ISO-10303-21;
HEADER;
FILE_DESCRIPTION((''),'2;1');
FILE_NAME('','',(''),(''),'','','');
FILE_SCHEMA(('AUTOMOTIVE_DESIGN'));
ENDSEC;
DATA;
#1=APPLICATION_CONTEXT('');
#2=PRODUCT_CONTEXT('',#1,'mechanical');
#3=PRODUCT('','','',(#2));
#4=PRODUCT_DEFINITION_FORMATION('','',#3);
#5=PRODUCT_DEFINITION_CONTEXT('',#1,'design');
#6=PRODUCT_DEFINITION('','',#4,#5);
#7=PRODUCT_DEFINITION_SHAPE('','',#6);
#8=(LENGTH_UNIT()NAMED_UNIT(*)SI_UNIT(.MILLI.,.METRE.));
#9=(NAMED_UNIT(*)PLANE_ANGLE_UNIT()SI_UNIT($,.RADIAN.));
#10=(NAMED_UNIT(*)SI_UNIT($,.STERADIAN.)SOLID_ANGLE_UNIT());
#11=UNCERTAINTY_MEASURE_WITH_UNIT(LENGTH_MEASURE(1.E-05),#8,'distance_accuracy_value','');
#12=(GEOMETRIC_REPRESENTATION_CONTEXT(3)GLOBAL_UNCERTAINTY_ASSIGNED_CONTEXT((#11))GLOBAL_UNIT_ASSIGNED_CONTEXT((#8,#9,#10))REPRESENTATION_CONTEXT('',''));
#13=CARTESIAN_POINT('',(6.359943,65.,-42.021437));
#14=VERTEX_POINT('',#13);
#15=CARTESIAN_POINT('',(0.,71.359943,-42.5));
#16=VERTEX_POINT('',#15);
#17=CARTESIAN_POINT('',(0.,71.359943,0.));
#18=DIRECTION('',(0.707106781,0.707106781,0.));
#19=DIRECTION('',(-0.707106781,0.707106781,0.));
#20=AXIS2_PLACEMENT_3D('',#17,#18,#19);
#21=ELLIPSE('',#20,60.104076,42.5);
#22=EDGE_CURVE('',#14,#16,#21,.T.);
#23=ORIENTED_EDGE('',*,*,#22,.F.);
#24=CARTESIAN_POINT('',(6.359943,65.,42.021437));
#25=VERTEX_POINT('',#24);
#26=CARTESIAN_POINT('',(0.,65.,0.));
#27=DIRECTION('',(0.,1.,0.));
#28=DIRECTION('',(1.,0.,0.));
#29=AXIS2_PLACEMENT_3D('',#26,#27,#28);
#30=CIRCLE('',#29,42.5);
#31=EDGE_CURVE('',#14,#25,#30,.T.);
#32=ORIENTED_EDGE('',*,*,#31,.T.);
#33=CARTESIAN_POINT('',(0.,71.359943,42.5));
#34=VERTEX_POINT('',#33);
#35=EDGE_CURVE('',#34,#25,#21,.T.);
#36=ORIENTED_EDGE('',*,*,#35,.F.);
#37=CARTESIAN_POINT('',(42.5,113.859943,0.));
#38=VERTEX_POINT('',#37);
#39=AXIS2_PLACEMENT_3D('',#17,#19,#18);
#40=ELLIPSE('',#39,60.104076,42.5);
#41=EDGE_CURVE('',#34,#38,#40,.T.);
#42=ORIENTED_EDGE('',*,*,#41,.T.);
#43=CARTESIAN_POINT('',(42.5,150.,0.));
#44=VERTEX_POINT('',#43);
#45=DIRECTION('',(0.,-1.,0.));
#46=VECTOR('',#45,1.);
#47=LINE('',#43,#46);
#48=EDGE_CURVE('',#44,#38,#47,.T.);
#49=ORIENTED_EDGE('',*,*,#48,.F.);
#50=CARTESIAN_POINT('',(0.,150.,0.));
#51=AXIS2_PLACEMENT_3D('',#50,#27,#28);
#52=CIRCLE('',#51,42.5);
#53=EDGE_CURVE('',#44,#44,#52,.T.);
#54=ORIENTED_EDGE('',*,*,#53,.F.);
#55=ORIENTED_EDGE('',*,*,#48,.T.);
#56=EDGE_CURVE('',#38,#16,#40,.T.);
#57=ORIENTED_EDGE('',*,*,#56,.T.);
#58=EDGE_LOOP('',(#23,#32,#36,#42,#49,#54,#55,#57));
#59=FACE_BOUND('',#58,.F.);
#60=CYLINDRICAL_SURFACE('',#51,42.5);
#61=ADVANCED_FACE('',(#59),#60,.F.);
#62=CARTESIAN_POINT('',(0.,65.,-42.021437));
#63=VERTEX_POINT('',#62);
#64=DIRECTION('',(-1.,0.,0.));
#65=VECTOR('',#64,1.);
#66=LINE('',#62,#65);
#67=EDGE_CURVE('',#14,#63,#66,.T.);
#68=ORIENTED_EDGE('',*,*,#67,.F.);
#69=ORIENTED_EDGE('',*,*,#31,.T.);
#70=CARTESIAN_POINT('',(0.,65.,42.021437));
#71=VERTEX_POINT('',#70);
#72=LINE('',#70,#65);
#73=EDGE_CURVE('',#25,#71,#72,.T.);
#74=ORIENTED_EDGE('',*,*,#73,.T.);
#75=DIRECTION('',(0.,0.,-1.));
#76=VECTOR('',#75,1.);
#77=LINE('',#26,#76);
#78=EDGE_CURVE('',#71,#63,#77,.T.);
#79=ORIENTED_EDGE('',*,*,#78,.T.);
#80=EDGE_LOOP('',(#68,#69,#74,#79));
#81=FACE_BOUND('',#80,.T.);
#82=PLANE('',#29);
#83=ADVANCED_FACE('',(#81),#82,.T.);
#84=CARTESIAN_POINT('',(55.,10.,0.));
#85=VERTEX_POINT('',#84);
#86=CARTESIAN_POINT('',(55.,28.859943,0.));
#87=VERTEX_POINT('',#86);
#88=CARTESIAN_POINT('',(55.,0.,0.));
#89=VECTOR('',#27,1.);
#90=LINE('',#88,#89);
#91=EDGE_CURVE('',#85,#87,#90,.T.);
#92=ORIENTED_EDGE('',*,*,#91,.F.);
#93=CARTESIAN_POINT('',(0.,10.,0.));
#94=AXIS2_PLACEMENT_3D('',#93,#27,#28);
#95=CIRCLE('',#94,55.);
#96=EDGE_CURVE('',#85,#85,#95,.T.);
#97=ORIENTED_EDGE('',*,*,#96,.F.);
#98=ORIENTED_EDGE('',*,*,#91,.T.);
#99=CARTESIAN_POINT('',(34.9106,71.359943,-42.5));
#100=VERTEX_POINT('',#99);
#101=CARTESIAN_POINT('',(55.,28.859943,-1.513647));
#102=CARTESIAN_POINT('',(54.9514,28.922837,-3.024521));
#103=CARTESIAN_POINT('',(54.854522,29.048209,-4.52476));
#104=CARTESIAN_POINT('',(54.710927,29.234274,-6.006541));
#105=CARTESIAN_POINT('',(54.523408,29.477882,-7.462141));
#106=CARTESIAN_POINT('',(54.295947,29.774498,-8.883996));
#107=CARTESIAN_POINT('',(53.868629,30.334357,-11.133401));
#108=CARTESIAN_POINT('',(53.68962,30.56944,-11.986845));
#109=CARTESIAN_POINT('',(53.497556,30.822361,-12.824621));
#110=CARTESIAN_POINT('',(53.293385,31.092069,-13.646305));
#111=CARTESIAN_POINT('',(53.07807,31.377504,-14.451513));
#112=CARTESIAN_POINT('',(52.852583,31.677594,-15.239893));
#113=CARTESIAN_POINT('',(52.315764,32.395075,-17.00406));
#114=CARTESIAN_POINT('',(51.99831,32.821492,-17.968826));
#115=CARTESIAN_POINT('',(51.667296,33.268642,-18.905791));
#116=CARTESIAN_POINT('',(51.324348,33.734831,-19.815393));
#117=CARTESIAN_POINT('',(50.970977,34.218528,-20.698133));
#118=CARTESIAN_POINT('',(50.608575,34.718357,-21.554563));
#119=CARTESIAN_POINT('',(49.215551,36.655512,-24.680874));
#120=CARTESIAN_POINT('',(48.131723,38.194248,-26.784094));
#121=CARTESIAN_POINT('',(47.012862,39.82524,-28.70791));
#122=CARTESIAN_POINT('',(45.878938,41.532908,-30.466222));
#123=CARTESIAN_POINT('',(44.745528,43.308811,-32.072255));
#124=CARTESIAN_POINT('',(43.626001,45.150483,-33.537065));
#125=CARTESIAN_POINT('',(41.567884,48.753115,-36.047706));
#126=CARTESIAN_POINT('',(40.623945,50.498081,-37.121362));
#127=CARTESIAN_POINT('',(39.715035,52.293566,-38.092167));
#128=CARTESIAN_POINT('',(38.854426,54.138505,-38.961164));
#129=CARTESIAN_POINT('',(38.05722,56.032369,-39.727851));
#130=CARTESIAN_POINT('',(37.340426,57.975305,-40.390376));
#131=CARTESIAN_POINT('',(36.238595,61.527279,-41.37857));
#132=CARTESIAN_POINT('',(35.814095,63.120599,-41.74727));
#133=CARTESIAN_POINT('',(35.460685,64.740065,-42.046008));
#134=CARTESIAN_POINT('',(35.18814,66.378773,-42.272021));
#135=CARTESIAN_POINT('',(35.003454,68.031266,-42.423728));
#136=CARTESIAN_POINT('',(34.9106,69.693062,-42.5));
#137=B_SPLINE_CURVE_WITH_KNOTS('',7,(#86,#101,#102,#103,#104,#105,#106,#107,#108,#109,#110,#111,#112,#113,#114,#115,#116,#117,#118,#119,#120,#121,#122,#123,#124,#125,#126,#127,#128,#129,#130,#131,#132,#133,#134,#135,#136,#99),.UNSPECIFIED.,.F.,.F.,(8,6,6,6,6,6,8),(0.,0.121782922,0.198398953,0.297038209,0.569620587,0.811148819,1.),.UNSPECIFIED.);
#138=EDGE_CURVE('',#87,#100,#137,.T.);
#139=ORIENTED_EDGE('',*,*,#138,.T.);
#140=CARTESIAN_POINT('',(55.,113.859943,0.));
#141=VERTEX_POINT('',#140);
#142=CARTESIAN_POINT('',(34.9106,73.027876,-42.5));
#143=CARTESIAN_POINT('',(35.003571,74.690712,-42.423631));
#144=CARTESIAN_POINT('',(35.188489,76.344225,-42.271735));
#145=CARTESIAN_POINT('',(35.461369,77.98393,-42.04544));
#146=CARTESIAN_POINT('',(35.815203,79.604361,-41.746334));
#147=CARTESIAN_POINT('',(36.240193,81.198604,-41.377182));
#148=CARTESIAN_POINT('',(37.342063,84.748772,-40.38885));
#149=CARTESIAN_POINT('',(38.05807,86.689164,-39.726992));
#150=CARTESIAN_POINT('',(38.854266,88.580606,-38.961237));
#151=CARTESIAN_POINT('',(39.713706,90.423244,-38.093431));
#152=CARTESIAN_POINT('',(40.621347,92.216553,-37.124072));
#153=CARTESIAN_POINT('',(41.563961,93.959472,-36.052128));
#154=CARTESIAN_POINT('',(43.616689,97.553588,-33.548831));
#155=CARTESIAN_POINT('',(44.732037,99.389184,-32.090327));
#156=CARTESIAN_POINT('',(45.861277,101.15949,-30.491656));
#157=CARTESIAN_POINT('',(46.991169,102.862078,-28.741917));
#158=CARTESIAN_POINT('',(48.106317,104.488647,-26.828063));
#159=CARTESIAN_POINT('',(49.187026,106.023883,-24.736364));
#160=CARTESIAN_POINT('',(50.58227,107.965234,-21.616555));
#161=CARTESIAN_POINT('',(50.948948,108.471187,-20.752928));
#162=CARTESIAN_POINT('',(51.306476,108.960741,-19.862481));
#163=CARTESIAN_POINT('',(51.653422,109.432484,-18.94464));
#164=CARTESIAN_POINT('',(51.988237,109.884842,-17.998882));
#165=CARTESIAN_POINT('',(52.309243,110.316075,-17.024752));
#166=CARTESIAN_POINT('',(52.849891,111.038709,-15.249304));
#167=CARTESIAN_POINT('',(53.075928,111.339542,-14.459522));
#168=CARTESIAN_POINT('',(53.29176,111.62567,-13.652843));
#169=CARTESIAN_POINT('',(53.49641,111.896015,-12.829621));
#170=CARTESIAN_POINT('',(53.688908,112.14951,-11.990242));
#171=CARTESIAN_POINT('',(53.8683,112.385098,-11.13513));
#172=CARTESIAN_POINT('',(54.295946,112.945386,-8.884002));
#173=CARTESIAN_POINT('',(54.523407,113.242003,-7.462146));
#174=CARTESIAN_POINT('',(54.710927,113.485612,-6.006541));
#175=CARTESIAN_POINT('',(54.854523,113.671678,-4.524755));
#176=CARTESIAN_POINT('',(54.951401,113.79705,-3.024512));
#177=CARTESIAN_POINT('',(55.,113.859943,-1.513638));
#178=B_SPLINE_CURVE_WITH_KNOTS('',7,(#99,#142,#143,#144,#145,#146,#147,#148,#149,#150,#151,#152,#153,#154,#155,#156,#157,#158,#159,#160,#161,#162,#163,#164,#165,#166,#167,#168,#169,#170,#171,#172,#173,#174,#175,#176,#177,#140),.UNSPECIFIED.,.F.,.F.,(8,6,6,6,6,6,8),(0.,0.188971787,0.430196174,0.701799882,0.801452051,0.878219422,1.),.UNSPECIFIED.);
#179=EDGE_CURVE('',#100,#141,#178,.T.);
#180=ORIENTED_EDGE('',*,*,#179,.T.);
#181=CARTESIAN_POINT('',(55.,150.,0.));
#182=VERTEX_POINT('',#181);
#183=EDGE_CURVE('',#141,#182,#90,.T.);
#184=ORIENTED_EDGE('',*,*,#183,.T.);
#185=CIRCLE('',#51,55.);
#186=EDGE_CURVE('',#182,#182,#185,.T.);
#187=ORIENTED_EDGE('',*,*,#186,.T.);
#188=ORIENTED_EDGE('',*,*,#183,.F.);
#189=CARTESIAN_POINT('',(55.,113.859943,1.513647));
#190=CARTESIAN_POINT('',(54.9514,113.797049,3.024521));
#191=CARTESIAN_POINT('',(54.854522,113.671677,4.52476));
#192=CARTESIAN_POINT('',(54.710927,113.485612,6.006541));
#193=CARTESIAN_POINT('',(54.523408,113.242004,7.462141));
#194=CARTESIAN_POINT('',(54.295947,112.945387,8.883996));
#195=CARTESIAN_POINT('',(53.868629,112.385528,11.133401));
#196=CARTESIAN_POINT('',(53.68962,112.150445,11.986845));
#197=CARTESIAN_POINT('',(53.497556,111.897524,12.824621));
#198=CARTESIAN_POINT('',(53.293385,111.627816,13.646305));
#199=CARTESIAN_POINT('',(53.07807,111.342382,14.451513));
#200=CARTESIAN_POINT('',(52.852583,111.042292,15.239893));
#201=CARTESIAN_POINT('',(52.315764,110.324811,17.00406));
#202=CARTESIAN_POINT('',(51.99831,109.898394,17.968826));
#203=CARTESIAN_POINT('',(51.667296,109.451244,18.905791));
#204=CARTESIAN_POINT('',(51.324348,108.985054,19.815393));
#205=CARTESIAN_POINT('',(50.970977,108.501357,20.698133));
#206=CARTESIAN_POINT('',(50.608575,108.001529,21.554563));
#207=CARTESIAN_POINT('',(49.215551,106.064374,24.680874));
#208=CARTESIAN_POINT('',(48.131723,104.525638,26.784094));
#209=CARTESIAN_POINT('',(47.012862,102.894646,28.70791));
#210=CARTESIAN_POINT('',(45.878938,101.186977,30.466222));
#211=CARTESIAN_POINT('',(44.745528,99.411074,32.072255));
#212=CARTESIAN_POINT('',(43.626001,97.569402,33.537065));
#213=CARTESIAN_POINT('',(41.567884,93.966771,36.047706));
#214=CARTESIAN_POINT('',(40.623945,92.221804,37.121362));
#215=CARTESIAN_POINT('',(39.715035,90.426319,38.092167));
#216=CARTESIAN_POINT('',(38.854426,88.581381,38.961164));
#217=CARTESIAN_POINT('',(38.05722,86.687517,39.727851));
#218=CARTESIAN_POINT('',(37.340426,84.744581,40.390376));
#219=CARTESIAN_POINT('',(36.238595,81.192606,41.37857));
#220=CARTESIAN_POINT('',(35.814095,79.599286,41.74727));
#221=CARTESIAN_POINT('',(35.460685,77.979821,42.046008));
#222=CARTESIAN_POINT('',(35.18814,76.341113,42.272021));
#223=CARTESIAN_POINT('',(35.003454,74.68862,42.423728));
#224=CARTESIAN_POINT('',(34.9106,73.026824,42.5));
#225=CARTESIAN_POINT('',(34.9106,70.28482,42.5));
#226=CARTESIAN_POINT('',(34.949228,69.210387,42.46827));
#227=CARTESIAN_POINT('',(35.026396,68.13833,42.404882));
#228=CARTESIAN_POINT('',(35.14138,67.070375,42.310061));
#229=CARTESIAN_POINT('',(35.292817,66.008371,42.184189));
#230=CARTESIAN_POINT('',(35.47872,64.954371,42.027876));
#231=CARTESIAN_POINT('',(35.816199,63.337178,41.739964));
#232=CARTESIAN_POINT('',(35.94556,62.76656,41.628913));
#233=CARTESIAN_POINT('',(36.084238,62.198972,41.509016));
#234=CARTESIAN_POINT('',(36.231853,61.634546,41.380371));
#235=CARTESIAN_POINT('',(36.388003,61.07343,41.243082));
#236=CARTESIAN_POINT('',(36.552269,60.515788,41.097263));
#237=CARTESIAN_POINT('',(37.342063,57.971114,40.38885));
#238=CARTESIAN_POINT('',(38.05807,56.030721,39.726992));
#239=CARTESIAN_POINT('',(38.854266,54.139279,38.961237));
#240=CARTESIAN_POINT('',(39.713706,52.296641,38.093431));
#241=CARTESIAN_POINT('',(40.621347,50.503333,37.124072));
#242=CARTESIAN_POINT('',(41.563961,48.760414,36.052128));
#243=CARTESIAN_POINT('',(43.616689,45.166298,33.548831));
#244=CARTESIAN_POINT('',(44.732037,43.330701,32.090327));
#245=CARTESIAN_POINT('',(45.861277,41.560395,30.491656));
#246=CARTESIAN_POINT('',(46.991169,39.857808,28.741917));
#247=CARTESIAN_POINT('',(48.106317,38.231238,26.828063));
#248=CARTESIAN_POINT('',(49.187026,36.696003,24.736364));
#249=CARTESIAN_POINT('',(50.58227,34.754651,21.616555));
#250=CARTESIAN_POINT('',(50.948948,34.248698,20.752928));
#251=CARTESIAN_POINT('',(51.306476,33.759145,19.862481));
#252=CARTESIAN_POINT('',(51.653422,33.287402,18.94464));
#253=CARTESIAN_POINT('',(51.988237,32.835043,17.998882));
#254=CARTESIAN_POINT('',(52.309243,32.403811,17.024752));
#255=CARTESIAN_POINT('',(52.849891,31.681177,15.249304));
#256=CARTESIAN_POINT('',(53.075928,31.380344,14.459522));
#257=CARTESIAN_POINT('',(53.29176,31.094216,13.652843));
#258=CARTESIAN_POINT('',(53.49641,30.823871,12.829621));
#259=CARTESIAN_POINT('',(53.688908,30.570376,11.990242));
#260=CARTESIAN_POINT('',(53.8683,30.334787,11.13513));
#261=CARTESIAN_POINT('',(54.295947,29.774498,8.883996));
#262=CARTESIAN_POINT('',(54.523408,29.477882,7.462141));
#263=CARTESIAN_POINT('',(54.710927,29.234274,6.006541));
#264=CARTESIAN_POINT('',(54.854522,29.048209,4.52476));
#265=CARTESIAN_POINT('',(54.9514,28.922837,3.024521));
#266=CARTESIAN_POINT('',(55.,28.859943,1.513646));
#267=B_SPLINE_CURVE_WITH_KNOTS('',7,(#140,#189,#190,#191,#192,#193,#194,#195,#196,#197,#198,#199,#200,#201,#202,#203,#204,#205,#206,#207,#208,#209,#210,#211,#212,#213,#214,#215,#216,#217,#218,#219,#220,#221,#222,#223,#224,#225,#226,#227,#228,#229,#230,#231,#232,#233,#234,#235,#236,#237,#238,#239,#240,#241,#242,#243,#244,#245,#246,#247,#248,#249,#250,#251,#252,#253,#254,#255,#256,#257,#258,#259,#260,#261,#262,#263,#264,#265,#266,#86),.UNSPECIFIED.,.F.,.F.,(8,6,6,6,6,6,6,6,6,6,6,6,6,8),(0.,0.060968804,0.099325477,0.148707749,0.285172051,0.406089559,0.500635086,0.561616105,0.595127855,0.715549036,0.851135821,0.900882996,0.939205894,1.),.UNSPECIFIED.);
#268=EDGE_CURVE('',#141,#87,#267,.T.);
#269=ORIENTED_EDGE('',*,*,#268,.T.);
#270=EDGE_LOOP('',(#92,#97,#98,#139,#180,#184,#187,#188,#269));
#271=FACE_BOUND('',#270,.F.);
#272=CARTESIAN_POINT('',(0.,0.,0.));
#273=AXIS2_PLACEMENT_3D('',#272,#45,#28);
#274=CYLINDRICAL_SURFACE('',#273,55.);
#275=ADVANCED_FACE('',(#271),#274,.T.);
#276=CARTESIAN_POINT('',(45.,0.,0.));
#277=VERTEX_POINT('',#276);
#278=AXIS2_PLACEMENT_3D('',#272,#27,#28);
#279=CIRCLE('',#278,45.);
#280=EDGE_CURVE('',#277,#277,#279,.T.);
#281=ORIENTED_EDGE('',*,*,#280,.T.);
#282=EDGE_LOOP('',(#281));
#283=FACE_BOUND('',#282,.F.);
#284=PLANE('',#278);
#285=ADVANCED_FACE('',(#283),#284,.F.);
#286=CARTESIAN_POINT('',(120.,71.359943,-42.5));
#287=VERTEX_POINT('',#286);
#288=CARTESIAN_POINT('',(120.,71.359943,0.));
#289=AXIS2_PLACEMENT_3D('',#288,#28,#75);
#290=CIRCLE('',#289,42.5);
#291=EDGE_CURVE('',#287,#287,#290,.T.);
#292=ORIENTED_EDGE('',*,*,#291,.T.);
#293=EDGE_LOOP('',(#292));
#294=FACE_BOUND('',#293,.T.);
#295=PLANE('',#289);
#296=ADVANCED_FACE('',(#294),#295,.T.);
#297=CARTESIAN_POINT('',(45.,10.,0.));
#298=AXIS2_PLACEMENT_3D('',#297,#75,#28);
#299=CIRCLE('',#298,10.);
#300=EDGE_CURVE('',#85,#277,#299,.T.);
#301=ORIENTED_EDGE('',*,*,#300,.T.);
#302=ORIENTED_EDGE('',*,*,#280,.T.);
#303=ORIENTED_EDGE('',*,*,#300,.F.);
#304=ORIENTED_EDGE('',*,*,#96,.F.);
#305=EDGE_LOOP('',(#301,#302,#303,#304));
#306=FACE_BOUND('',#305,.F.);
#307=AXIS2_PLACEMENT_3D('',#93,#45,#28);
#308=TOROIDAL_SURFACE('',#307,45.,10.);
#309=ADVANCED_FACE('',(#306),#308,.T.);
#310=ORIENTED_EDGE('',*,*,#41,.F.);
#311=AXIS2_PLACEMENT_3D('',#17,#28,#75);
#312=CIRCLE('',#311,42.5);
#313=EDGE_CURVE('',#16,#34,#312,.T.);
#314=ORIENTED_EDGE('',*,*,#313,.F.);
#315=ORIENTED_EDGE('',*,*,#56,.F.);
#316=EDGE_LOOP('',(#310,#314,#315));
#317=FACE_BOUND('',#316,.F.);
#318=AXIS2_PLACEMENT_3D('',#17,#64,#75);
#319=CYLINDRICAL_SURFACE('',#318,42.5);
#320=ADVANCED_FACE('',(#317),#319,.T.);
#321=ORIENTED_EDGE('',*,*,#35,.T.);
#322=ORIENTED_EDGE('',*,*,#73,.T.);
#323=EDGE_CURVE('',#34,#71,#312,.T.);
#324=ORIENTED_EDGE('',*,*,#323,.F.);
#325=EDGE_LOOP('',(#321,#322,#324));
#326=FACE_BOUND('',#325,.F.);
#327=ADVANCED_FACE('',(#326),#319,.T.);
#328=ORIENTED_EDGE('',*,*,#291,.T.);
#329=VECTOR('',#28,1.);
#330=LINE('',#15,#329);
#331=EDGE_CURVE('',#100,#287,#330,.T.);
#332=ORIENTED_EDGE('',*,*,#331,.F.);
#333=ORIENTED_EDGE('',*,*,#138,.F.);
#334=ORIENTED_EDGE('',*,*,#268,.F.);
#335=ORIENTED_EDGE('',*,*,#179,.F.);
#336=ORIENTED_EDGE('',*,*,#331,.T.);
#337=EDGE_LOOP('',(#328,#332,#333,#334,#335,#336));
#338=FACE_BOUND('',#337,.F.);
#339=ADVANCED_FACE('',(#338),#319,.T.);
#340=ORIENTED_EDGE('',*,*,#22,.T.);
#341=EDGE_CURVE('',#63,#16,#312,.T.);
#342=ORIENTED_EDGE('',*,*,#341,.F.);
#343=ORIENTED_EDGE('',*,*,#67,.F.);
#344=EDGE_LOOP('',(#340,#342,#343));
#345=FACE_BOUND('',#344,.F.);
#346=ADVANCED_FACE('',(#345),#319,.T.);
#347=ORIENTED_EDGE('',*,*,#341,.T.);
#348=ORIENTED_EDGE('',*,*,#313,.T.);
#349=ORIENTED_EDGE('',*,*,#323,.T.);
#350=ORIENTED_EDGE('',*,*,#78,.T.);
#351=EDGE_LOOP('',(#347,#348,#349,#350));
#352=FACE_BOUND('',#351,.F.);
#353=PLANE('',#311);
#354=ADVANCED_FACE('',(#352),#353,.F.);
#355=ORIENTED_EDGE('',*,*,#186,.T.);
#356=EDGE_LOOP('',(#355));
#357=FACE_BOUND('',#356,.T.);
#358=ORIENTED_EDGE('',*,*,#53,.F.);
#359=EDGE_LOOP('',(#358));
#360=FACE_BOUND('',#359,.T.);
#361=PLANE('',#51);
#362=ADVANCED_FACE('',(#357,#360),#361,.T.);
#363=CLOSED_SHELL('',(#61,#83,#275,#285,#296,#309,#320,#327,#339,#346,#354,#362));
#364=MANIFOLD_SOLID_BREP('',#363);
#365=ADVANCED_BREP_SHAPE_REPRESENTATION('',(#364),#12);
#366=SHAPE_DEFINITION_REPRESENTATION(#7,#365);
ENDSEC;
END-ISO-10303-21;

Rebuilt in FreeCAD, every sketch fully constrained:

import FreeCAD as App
import Part
import Sketcher

V = App.Vector
Q = App.Units.Quantity


def edges_at(feature, points):
    """Names of the edges that pass closest to the given points."""
    edges = feature.Shape.Edges
    near = lambda p: min(range(len(edges)), key=lambda i: edges[i].distToShape(Part.Vertex(*p))[0])
    return sorted({f"Edge{near(p) + 1}" for p in points})

doc = App.newDocument("Part")
body = doc.addObject("PartDesign::Body", "Body")

# Sketch on XZ plane
sketch1 = body.newObject("Sketcher::SketchObject", "Sketch")
sketch1.AttachmentSupport = (doc.getObject("XZ_Plane"), [""])
sketch1.MapMode = "FlatFace"
sketch1.addGeometry(Part.Circle(V(0, 0, 0), V(0, 0, 1), 55), False)
sketch1.addConstraint([
    Sketcher.Constraint("Coincident", 0, 3, -1, 1),
    Sketcher.Constraint("Diameter", 0, Q("110 mm")),
])
pad1 = body.newObject("PartDesign::Pad", "Pad")
pad1.Profile = sketch1
pad1.Length = 150
pad1.Reversed = True
doc.recompute()

fillet = body.newObject("PartDesign::Fillet", "Fillet")
fillet.Base = (pad1, edges_at(pad1, [(-55, 0, 0)]))
fillet.Radius = 10

# Sketch on XZ plane
sketch2 = body.newObject("Sketcher::SketchObject", "Sketch001")
sketch2.AttachmentSupport = (doc.getObject("XZ_Plane"), [""])
sketch2.MapMode = "FlatFace"
sketch2.AttachmentOffset = App.Placement(V(0, 0, -150), App.Rotation())
sketch2.addGeometry(Part.Circle(V(0, 0, 0), V(0, 0, 1), 42), False)
sketch2.addConstraint([
    Sketcher.Constraint("Coincident", 0, 3, -1, 1),
    Sketcher.Constraint("Diameter", 0, Q("85 mm")),
])
pocket1 = body.newObject("PartDesign::Pocket", "Pocket")
pocket1.Profile = sketch2
pocket1.Length = 85
pocket1.Reversed = True

# Sketch on YZ plane
sketch3 = body.newObject("Sketcher::SketchObject", "Sketch002")
sketch3.AttachmentSupport = (doc.getObject("YZ_Plane"), [""])
sketch3.MapMode = "FlatFace"
sketch3.addGeometry(Part.Circle(V(71, 0, 0), V(0, 0, 1), 42), False)
sketch3.addConstraint([
    Sketcher.Constraint("PointOnObject", 0, 3, -1),
    Sketcher.Constraint("Diameter", 0, Q("85 mm")),
    Sketcher.Constraint("DistanceX", -1, 1, 0, 3, Q("71.359943 mm")),
])
pad2 = body.newObject("PartDesign::Pad", "Pad001")
pad2.Profile = sketch3
pad2.Length = 120

doc.recompute()
